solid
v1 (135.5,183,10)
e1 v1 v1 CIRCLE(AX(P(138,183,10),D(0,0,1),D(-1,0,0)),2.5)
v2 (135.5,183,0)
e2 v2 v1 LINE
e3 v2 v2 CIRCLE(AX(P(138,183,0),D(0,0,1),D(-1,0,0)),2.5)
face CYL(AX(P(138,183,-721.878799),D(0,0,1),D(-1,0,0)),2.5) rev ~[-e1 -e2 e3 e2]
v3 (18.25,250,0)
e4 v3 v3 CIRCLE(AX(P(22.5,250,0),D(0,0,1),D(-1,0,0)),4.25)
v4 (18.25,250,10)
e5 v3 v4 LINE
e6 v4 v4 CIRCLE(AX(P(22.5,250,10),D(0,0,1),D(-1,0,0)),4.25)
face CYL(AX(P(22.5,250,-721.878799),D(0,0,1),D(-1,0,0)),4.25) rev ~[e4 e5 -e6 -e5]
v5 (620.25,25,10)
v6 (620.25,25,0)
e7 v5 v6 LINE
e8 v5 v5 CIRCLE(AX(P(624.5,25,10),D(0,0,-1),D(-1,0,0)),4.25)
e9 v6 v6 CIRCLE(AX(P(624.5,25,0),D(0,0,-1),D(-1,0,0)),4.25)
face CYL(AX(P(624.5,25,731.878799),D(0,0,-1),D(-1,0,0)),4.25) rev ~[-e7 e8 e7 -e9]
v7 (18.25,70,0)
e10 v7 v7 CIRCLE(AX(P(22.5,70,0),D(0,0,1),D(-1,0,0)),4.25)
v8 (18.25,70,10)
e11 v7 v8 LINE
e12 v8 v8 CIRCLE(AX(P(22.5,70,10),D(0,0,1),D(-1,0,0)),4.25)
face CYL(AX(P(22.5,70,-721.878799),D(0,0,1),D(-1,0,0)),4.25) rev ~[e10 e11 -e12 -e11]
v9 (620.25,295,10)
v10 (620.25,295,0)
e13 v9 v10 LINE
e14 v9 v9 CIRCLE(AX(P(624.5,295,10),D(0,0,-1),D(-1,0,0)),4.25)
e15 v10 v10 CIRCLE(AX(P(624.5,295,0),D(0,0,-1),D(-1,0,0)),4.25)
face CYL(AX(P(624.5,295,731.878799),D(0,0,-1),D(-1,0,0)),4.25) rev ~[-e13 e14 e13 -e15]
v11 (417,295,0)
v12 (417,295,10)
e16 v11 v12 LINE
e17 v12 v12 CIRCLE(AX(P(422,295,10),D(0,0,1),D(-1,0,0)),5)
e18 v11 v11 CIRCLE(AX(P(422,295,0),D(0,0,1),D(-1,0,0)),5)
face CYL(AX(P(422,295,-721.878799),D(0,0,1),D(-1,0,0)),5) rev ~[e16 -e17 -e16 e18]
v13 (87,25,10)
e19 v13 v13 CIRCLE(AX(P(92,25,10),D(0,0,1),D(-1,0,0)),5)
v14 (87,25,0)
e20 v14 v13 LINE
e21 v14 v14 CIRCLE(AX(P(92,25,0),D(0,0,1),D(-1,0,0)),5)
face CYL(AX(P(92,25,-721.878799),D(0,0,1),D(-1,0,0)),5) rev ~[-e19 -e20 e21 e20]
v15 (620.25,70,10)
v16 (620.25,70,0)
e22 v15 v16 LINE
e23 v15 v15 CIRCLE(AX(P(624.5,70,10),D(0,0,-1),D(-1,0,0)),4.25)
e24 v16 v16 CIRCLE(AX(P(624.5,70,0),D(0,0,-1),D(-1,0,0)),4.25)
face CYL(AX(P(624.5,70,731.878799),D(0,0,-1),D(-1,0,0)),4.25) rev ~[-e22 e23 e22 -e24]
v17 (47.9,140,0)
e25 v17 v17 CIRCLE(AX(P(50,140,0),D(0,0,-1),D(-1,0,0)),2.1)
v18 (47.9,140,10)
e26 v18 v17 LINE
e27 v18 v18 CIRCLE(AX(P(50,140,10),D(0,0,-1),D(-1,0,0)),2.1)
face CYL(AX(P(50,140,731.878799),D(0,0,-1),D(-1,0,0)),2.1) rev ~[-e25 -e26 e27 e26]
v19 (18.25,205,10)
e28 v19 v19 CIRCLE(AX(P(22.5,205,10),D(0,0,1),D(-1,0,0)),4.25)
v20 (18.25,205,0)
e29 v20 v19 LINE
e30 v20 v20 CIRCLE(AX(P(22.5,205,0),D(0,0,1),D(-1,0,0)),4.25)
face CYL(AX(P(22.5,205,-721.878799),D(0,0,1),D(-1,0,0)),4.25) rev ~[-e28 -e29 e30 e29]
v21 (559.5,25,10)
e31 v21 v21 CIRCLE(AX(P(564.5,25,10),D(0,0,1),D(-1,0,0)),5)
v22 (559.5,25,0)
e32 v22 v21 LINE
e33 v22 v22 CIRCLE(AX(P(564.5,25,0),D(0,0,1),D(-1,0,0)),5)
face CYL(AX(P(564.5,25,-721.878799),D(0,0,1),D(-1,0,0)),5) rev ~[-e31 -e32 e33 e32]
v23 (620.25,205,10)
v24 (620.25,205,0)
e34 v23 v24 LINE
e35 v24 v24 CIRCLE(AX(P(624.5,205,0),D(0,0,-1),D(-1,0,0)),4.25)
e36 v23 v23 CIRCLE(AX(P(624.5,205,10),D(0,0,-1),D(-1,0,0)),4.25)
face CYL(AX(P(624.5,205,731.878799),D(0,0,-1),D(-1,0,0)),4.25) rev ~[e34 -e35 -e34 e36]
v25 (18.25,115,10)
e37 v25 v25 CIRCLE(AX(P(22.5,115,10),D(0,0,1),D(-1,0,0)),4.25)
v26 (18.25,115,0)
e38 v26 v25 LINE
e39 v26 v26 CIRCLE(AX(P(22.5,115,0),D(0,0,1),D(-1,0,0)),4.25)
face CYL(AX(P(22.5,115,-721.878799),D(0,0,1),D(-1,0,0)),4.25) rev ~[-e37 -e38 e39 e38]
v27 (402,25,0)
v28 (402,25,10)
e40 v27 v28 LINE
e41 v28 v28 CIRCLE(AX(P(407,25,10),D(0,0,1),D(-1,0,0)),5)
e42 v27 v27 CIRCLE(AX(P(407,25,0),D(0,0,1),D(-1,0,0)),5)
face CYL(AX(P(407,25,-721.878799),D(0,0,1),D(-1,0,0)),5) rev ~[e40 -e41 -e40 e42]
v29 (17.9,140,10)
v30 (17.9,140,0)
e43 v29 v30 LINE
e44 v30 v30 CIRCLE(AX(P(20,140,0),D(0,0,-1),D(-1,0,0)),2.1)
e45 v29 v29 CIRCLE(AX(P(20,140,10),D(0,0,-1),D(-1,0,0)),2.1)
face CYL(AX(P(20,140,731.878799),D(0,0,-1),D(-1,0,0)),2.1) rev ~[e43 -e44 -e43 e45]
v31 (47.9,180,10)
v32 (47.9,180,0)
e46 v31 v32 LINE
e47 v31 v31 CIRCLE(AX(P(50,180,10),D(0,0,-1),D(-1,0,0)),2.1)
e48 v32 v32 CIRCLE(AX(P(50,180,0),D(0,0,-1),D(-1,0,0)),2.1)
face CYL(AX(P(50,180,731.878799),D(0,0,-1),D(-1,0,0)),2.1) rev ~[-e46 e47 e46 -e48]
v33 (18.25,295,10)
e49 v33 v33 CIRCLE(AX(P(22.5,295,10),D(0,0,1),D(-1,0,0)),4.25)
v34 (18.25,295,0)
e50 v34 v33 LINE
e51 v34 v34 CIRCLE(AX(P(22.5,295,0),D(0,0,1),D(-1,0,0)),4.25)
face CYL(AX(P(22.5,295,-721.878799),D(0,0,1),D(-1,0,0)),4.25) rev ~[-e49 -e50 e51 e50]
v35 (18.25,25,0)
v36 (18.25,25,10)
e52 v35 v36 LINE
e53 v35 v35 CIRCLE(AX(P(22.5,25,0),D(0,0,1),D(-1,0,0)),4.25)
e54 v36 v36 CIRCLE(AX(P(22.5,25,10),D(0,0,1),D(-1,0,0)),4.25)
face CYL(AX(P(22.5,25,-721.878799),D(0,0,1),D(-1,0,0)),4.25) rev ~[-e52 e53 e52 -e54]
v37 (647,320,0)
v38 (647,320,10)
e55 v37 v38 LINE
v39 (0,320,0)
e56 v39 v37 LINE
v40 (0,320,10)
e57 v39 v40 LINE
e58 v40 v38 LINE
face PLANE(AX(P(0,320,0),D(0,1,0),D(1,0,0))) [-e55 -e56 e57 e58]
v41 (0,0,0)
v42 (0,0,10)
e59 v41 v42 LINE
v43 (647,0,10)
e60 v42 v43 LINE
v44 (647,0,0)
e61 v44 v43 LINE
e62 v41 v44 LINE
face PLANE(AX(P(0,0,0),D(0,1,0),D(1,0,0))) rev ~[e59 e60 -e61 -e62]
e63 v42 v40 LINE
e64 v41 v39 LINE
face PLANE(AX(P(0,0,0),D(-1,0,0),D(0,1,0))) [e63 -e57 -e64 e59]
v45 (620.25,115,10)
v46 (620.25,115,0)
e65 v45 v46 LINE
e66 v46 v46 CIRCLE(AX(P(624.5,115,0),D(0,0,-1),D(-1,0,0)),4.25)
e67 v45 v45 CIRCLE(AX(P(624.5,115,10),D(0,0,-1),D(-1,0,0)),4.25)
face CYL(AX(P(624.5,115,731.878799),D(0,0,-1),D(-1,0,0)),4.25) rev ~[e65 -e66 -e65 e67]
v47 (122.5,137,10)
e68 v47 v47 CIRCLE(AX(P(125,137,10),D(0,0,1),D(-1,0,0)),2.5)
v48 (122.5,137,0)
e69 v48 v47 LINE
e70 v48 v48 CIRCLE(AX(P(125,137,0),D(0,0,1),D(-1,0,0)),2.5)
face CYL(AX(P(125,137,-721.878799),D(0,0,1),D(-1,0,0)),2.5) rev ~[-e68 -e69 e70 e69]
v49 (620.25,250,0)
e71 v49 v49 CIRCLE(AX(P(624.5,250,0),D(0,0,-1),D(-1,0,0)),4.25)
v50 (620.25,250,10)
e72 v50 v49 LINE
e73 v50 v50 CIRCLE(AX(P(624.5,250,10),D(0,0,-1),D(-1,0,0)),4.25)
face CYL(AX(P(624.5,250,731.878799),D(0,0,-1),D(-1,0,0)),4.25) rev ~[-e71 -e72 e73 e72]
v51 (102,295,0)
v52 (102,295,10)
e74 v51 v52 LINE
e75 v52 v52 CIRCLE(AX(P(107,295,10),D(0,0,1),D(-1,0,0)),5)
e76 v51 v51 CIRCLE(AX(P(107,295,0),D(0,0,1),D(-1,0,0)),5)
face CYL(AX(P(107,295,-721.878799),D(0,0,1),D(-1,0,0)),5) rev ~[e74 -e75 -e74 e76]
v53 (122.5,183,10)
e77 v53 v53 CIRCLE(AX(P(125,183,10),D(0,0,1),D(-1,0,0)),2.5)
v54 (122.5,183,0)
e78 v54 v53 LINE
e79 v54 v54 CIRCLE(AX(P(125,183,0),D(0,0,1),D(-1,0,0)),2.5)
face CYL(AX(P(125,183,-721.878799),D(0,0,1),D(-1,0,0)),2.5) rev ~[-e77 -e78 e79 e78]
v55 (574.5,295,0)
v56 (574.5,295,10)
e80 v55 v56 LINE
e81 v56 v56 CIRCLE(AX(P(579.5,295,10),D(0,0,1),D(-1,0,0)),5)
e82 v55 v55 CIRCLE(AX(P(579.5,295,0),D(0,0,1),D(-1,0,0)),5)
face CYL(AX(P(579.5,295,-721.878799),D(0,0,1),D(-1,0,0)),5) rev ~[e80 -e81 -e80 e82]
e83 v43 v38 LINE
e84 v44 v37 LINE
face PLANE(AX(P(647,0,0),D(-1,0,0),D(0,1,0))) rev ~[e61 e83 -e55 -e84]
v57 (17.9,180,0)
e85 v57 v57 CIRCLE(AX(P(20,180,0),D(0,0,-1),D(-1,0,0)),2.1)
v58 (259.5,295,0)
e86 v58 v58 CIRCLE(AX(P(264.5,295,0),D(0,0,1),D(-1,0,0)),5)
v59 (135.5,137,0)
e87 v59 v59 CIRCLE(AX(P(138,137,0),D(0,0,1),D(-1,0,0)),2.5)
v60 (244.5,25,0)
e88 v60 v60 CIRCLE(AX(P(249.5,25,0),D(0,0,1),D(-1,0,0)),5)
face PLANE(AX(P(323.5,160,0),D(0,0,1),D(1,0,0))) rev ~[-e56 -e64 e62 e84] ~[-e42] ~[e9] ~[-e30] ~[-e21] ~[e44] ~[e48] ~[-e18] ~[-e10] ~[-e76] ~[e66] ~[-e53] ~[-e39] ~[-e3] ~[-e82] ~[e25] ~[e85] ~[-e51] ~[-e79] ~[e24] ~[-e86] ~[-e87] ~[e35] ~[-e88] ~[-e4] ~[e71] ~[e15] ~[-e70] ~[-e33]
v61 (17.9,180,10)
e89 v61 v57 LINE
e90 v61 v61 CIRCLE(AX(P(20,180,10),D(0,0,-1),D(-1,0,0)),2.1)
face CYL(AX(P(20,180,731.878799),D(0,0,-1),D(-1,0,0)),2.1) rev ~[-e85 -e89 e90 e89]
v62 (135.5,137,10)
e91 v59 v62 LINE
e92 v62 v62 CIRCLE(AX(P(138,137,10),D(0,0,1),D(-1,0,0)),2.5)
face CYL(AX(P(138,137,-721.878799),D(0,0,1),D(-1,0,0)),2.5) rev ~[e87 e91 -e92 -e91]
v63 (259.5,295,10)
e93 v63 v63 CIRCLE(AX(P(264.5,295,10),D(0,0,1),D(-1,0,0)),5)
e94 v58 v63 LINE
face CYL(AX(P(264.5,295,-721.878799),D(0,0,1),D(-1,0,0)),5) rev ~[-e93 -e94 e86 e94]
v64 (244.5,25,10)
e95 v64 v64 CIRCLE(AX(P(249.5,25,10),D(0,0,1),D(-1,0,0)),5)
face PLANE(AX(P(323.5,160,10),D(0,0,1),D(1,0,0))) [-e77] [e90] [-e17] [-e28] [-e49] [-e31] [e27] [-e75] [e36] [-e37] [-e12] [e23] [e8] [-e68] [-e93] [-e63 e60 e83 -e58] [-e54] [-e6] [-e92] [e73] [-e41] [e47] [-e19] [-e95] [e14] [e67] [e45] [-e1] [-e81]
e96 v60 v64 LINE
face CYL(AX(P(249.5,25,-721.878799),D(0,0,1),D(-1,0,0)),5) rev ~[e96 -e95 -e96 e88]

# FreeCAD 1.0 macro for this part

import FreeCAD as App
import Part
import Sketcher
Q = App.Units.Quantity

doc = App.newDocument("Part")
body = doc.addObject("PartDesign::Body", "Body")

# Sketch on XY plane
sketch1 = body.newObject("Sketcher::SketchObject", "Sketch")
sketch1.AttachmentSupport = (doc.getObject("XY_Plane"), [""])
sketch1.MapMode = "FlatFace"
sketch1.addGeometry(Part.LineSegment(App.Vector(0, 320, 0), App.Vector(0, 0, 0)), False)
sketch1.addGeometry(Part.LineSegment(App.Vector(0, 0, 0), App.Vector(647, 0, 0)), False)
sketch1.addGeometry(Part.LineSegment(App.Vector(647, 0, 0), App.Vector(647, 320, 0)), False)
sketch1.addGeometry(Part.LineSegment(App.Vector(647, 320, 0), App.Vector(0, 320, 0)), False)
sketch1.addConstraint(Sketcher.Constraint("Coincident", 0, 2, 1, 1))
sketch1.addConstraint(Sketcher.Constraint("Coincident", 1, 2, 2, 1))
sketch1.addConstraint(Sketcher.Constraint("Coincident", 2, 2, 3, 1))
sketch1.addConstraint(Sketcher.Constraint("Coincident", 3, 2, 0, 1))
sketch1.addConstraint(Sketcher.Constraint("Vertical", 0))
sketch1.addConstraint(Sketcher.Constraint("Horizontal", 1))
sketch1.addConstraint(Sketcher.Constraint("Vertical", 2))
sketch1.addConstraint(Sketcher.Constraint("Horizontal", 3))
sketch1.addConstraint(Sketcher.Constraint("Coincident", 0, 2, -1, 1))
sketch1.addConstraint(Sketcher.Constraint("DistanceX", 1, 1, 1, 2, Q("647 mm")))
sketch1.addConstraint(Sketcher.Constraint("DistanceY", 0, 2, 0, 1, Q("320 mm")))
pad1 = body.newObject("PartDesign::Pad", "Pad")
pad1.Profile = sketch1
pad1.Length = 10

# Sketch on XY plane
sketch2 = body.newObject("Sketcher::SketchObject", "Sketch001")
sketch2.AttachmentSupport = (doc.getObject("XY_Plane"), [""])
sketch2.MapMode = "FlatFace"
sketch2.addGeometry(Part.Circle(App.Vector(92, 25, 0), App.Vector(0, 0, 1), 5), False)
sketch2.addGeometry(Part.Circle(App.Vector(250, 25, 0), App.Vector(0, 0, 1), 5), False)
sketch2.addGeometry(Part.Circle(App.Vector(407, 25, 0), App.Vector(0, 0, 1), 5), False)
sketch2.addGeometry(Part.Circle(App.Vector(564, 25, 0), App.Vector(0, 0, 1), 5), False)
sketch2.addGeometry(Part.Circle(App.Vector(107, 295, 0), App.Vector(0, 0, 1), 5), False)
sketch2.addGeometry(Part.Circle(App.Vector(264, 295, 0), App.Vector(0, 0, 1), 5), False)
sketch2.addGeometry(Part.Circle(App.Vector(422, 295, 0), App.Vector(0, 0, 1), 5), False)
sketch2.addGeometry(Part.Circle(App.Vector(580, 295, 0), App.Vector(0, 0, 1), 5), False)
sketch2.addConstraint(Sketcher.Constraint("Equal", 0, 1))
sketch2.addConstraint(Sketcher.Constraint("Equal", 1, 2))
sketch2.addConstraint(Sketcher.Constraint("Equal", 2, 3))
sketch2.addConstraint(Sketcher.Constraint("Equal", 3, 4))
sketch2.addConstraint(Sketcher.Constraint("Equal", 4, 5))
sketch2.addConstraint(Sketcher.Constraint("Equal", 5, 6))
sketch2.addConstraint(Sketcher.Constraint("Equal", 6, 7))
sketch2.addConstraint(Sketcher.Constraint("Horizontal", 0, 3, 1, 3))
sketch2.addConstraint(Sketcher.Constraint("Horizontal", 1, 3, 2, 3))
sketch2.addConstraint(Sketcher.Constraint("Horizontal", 2, 3, 3, 3))
sketch2.addConstraint(Sketcher.Constraint("Horizontal", 4, 3, 5, 3))
sketch2.addConstraint(Sketcher.Constraint("Horizontal", 5, 3, 6, 3))
sketch2.addConstraint(Sketcher.Constraint("Horizontal", 6, 3, 7, 3))
sketch2.addConstraint(Sketcher.Constraint("Diameter", 0, Q("10 mm")))
sketch2.addConstraint(Sketcher.Constraint("DistanceX", -1, 1, 0, 3, Q("92 mm")))
sketch2.addConstraint(Sketcher.Constraint("DistanceY", -1, 1, 0, 3, Q("25 mm")))
sketch2.addConstraint(Sketcher.Constraint("DistanceX", -1, 1, 2, 3, Q("407 mm")))
sketch2.addConstraint(Sketcher.Constraint("DistanceX", -1, 1, 4, 3, Q("107 mm")))
sketch2.addConstraint(Sketcher.Constraint("DistanceY", -1, 1, 4, 3, Q("295 mm")))
sketch2.addConstraint(Sketcher.Constraint("DistanceX", -1, 1, 6, 3, Q("422 mm")))
sketch2.addConstraint(Sketcher.Constraint("DistanceX", 1, 3, 3, 3, Q("315 mm")))
sketch2.addConstraint(Sketcher.Constraint("DistanceX", 1, 3, 5, 3, Q("15 mm")))
sketch2.addConstraint(Sketcher.Constraint("DistanceX", 3, 3, 7, 3, Q("15 mm")))
sketch2.addConstraint(Sketcher.Constraint("DistanceX", -1, 1, 1, 3, Q("249.5 mm")))
doc.recompute()
hole = body.newObject("PartDesign::Hole", "Hole")
hole.Profile = sketch2
hole.ThreadType = "None"
hole.Diameter = 10
hole.DepthType = "ThroughAll"
hole.Reversed = True

# Sketch on XY plane
sketch3 = body.newObject("Sketcher::SketchObject", "Sketch002")
sketch3.AttachmentSupport = (doc.getObject("XY_Plane"), [""])
sketch3.MapMode = "FlatFace"
sketch3.addGeometry(Part.Circle(App.Vector(138, 183, 0), App.Vector(0, 0, 1), 2.5), False)
sketch3.addGeometry(Part.Circle(App.Vector(125, 183, 0), App.Vector(0, 0, 1), 2.5), False)
sketch3.addGeometry(Part.Circle(App.Vector(125, 137, 0), App.Vector(0, 0, 1), 2.5), False)
sketch3.addGeometry(Part.Circle(App.Vector(138, 137, 0), App.Vector(0, 0, 1), 2.5), False)
sketch3.addConstraint(Sketcher.Constraint("Equal", 0, 1))
sketch3.addConstraint(Sketcher.Constraint("Equal", 1, 2))
sketch3.addConstraint(Sketcher.Constraint("Equal", 2, 3))
sketch3.addConstraint(Sketcher.Constraint("Horizontal", 0, 3, 1, 3))
sketch3.addConstraint(Sketcher.Constraint("Horizontal", 2, 3, 3, 3))
sketch3.addConstraint(Sketcher.Constraint("Vertical", 1, 3, 2, 3))
sketch3.addConstraint(Sketcher.Constraint("Vertical", 0, 3, 3, 3))
sketch3.addConstraint(Sketcher.Constraint("Diameter", 0, Q("5 mm")))
sketch3.addConstraint(Sketcher.Constraint("DistanceX", -1, 1, 0, 3, Q("138 mm")))
sketch3.addConstraint(Sketcher.Constraint("DistanceY", -1, 1, 0, 3, Q("183 mm")))
sketch3.addConstraint(Sketcher.Constraint("DistanceX", -1, 1, 1, 3, Q("125 mm")))
sketch3.addConstraint(Sketcher.Constraint("DistanceY", -1, 1, 2, 3, Q("137 mm")))
doc.recompute()
hole2 = body.newObject("PartDesign::Hole", "Hole001")
hole2.Profile = sketch3
hole2.ThreadType = "None"
hole2.Diameter = 5
hole2.DepthType = "ThroughAll"
hole2.Reversed = True

# Sketch on XY plane
sketch4 = body.newObject("Sketcher::SketchObject", "Sketch003")
sketch4.AttachmentSupport = (doc.getObject("XY_Plane"), [""])
sketch4.MapMode = "FlatFace"
sketch4.addGeometry(Part.Circle(App.Vector(22.5, 250, 0), App.Vector(0, 0, 1), 4.2), False)
sketch4.addGeometry(Part.Circle(App.Vector(22.5, 205, 0), App.Vector(0, 0, 1), 4.2), False)
sketch4.addGeometry(Part.Circle(App.Vector(22.5, 115, 0), App.Vector(0, 0, 1), 4.2), False)
sketch4.addGeometry(Part.Circle(App.Vector(22.5, 70, 0), App.Vector(0, 0, 1), 4.2), False)
sketch4.addGeometry(Part.Circle(App.Vector(22.5, 295, 0), App.Vector(0, 0, 1), 4.2), False)
sketch4.addGeometry(Part.Circle(App.Vector(22.5, 25, 0), App.Vector(0, 0, 1), 4.2), False)
sketch4.addConstraint(Sketcher.Constraint("Equal", 0, 1))
sketch4.addConstraint(Sketcher.Constraint("Equal", 1, 2))
sketch4.addConstraint(Sketcher.Constraint("Equal", 2, 3))
sketch4.addConstraint(Sketcher.Constraint("Equal", 3, 4))
sketch4.addConstraint(Sketcher.Constraint("Equal", 4, 5))
sketch4.addConstraint(Sketcher.Constraint("Vertical", 0, 3, 1, 3))
sketch4.addConstraint(Sketcher.Constraint("Vertical", 1, 3, 2, 3))
sketch4.addConstraint(Sketcher.Constraint("Vertical", 2, 3, 3, 3))
sketch4.addConstraint(Sketcher.Constraint("Vertical", 3, 3, 4, 3))
sketch4.addConstraint(Sketcher.Constraint("Vertical", 4, 3, 5, 3))
sketch4.addConstraint(Sketcher.Constraint("Diameter", 0, Q("8.5 mm")))
sketch4.addConstraint(Sketcher.Constraint("DistanceY", -1, 1, 0, 3, Q("250 mm")))
sketch4.addConstraint(Sketcher.Constraint("DistanceY", -1, 1, 1, 3, Q("205 mm")))
sketch4.addConstraint(Sketcher.Constraint("DistanceY", -1, 1, 2, 3, Q("115 mm")))
sketch4.addConstraint(Sketcher.Constraint("DistanceY", -1, 1, 3, 3, Q("70 mm")))
sketch4.addConstraint(Sketcher.Constraint("DistanceY", -1, 1, 4, 3, Q("295 mm")))
sketch4.addConstraint(Sketcher.Constraint("DistanceY", -1, 1, 5, 3, Q("25 mm")))
sketch4.addConstraint(Sketcher.Constraint("DistanceX", -1, 1, 0, 3, Q("22.5 mm")))
doc.recompute()
hole3 = body.newObject("PartDesign::Hole", "Hole002")
hole3.Profile = sketch4
hole3.ThreadType = "None"
hole3.Diameter = 8.5
hole3.DepthType = "ThroughAll"
hole3.Reversed = True

# Sketch on XY plane
sketch5 = body.newObject("Sketcher::SketchObject", "Sketch004")
sketch5.AttachmentSupport = (doc.getObject("XY_Plane"), [""])
sketch5.MapMode = "FlatFace"
sketch5.AttachmentOffset = App.Placement(App.Vector(0, 0, 10), App.Rotation())
sketch5.addGeometry(Part.Circle(App.Vector(20, 180, 0), App.Vector(0, 0, 1), 2.1), False)
sketch5.addGeometry(Part.Circle(App.Vector(50, 180, 0), App.Vector(0, 0, 1), 2.1), False)
sketch5.addGeometry(Part.Circle(App.Vector(50, 140, 0), App.Vector(0, 0, 1), 2.1), False)
sketch5.addGeometry(Part.Circle(App.Vector(20, 140, 0), App.Vector(0, 0, 1), 2.1), False)
sketch5.addConstraint(Sketcher.Constraint("Equal", 0, 1))
sketch5.addConstraint(Sketcher.Constraint("Equal", 1, 2))
sketch5.addConstraint(Sketcher.Constraint("Equal", 2, 3))
sketch5.addConstraint(Sketcher.Constraint("Horizontal", 0, 3, 1, 3))
sketch5.addConstraint(Sketcher.Constraint("Horizontal", 2, 3, 3, 3))
sketch5.addConstraint(Sketcher.Constraint("Vertical", 1, 3, 2, 3))
sketch5.addConstraint(Sketcher.Constraint("Vertical", 0, 3, 3, 3))
sketch5.addConstraint(Sketcher.Constraint("Diameter", 0, Q("4.2 mm")))
sketch5.addConstraint(Sketcher.Constraint("DistanceX", -1, 1, 0, 3, Q("20 mm")))
sketch5.addConstraint(Sketcher.Constraint("DistanceY", -1, 1, 0, 3, Q("180 mm")))
sketch5.addConstraint(Sketcher.Constraint("DistanceX", -1, 1, 1, 3, Q("50 mm")))
sketch5.addConstraint(Sketcher.Constraint("DistanceY", -1, 1, 2, 3, Q("140 mm")))
doc.recompute()
hole4 = body.newObject("PartDesign::Hole", "Hole003")
hole4.Profile = sketch5
hole4.ThreadType = "None"
hole4.Diameter = 4.2
hole4.DepthType = "ThroughAll"

# Sketch on XY plane
sketch6 = body.newObject("Sketcher::SketchObject", "Sketch005")
sketch6.AttachmentSupport = (doc.getObject("XY_Plane"), [""])
sketch6.MapMode = "FlatFace"
sketch6.AttachmentOffset = App.Placement(App.Vector(0, 0, 10), App.Rotation())
sketch6.addGeometry(Part.Circle(App.Vector(624.5, 295, 0), App.Vector(0, 0, 1), 4.2), False)
sketch6.addGeometry(Part.Circle(App.Vector(624.5, 250, 0), App.Vector(0, 0, 1), 4.2), False)
sketch6.addGeometry(Part.Circle(App.Vector(624.5, 205, 0), App.Vector(0, 0, 1), 4.2), False)
sketch6.addGeometry(Part.Circle(App.Vector(624.5, 115, 0), App.Vector(0, 0, 1), 4.2), False)
sketch6.addGeometry(Part.Circle(App.Vector(624.5, 70, 0), App.Vector(0, 0, 1), 4.2), False)
sketch6.addGeometry(Part.Circle(App.Vector(624.5, 25, 0), App.Vector(0, 0, 1), 4.2), False)
sketch6.addConstraint(Sketcher.Constraint("Equal", 0, 1))
sketch6.addConstraint(Sketcher.Constraint("Equal", 1, 2))
sketch6.addConstraint(Sketcher.Constraint("Equal", 2, 3))
sketch6.addConstraint(Sketcher.Constraint("Equal", 3, 4))
sketch6.addConstraint(Sketcher.Constraint("Equal", 4, 5))
sketch6.addConstraint(Sketcher.Constraint("Vertical", 0, 3, 1, 3))
sketch6.addConstraint(Sketcher.Constraint("Vertical", 1, 3, 2, 3))
sketch6.addConstraint(Sketcher.Constraint("Vertical", 2, 3, 3, 3))
sketch6.addConstraint(Sketcher.Constraint("Vertical", 3, 3, 4, 3))
sketch6.addConstraint(Sketcher.Constraint("Vertical", 4, 3, 5, 3))
sketch6.addConstraint(Sketcher.Constraint("Diameter", 0, Q("8.5 mm")))
sketch6.addConstraint(Sketcher.Constraint("DistanceY", -1, 1, 0, 3, Q("295 mm")))
sketch6.addConstraint(Sketcher.Constraint("DistanceY", -1, 1, 1, 3, Q("250 mm")))
sketch6.addConstraint(Sketcher.Constraint("DistanceY", -1, 1, 2, 3, Q("205 mm")))
sketch6.addConstraint(Sketcher.Constraint("DistanceY", -1, 1, 3, 3, Q("115 mm")))
sketch6.addConstraint(Sketcher.Constraint("DistanceY", -1, 1, 4, 3, Q("70 mm")))
sketch6.addConstraint(Sketcher.Constraint("DistanceY", -1, 1, 5, 3, Q("25 mm")))
sketch6.addConstraint(Sketcher.Constraint("DistanceX", -1, 1, 0, 3, Q("624.5 mm")))
doc.recompute()
hole5 = body.newObject("PartDesign::Hole", "Hole004")
hole5.Profile = sketch6
hole5.ThreadType = "None"
hole5.Diameter = 8.5
hole5.DepthType = "ThroughAll"

doc.recompute()
